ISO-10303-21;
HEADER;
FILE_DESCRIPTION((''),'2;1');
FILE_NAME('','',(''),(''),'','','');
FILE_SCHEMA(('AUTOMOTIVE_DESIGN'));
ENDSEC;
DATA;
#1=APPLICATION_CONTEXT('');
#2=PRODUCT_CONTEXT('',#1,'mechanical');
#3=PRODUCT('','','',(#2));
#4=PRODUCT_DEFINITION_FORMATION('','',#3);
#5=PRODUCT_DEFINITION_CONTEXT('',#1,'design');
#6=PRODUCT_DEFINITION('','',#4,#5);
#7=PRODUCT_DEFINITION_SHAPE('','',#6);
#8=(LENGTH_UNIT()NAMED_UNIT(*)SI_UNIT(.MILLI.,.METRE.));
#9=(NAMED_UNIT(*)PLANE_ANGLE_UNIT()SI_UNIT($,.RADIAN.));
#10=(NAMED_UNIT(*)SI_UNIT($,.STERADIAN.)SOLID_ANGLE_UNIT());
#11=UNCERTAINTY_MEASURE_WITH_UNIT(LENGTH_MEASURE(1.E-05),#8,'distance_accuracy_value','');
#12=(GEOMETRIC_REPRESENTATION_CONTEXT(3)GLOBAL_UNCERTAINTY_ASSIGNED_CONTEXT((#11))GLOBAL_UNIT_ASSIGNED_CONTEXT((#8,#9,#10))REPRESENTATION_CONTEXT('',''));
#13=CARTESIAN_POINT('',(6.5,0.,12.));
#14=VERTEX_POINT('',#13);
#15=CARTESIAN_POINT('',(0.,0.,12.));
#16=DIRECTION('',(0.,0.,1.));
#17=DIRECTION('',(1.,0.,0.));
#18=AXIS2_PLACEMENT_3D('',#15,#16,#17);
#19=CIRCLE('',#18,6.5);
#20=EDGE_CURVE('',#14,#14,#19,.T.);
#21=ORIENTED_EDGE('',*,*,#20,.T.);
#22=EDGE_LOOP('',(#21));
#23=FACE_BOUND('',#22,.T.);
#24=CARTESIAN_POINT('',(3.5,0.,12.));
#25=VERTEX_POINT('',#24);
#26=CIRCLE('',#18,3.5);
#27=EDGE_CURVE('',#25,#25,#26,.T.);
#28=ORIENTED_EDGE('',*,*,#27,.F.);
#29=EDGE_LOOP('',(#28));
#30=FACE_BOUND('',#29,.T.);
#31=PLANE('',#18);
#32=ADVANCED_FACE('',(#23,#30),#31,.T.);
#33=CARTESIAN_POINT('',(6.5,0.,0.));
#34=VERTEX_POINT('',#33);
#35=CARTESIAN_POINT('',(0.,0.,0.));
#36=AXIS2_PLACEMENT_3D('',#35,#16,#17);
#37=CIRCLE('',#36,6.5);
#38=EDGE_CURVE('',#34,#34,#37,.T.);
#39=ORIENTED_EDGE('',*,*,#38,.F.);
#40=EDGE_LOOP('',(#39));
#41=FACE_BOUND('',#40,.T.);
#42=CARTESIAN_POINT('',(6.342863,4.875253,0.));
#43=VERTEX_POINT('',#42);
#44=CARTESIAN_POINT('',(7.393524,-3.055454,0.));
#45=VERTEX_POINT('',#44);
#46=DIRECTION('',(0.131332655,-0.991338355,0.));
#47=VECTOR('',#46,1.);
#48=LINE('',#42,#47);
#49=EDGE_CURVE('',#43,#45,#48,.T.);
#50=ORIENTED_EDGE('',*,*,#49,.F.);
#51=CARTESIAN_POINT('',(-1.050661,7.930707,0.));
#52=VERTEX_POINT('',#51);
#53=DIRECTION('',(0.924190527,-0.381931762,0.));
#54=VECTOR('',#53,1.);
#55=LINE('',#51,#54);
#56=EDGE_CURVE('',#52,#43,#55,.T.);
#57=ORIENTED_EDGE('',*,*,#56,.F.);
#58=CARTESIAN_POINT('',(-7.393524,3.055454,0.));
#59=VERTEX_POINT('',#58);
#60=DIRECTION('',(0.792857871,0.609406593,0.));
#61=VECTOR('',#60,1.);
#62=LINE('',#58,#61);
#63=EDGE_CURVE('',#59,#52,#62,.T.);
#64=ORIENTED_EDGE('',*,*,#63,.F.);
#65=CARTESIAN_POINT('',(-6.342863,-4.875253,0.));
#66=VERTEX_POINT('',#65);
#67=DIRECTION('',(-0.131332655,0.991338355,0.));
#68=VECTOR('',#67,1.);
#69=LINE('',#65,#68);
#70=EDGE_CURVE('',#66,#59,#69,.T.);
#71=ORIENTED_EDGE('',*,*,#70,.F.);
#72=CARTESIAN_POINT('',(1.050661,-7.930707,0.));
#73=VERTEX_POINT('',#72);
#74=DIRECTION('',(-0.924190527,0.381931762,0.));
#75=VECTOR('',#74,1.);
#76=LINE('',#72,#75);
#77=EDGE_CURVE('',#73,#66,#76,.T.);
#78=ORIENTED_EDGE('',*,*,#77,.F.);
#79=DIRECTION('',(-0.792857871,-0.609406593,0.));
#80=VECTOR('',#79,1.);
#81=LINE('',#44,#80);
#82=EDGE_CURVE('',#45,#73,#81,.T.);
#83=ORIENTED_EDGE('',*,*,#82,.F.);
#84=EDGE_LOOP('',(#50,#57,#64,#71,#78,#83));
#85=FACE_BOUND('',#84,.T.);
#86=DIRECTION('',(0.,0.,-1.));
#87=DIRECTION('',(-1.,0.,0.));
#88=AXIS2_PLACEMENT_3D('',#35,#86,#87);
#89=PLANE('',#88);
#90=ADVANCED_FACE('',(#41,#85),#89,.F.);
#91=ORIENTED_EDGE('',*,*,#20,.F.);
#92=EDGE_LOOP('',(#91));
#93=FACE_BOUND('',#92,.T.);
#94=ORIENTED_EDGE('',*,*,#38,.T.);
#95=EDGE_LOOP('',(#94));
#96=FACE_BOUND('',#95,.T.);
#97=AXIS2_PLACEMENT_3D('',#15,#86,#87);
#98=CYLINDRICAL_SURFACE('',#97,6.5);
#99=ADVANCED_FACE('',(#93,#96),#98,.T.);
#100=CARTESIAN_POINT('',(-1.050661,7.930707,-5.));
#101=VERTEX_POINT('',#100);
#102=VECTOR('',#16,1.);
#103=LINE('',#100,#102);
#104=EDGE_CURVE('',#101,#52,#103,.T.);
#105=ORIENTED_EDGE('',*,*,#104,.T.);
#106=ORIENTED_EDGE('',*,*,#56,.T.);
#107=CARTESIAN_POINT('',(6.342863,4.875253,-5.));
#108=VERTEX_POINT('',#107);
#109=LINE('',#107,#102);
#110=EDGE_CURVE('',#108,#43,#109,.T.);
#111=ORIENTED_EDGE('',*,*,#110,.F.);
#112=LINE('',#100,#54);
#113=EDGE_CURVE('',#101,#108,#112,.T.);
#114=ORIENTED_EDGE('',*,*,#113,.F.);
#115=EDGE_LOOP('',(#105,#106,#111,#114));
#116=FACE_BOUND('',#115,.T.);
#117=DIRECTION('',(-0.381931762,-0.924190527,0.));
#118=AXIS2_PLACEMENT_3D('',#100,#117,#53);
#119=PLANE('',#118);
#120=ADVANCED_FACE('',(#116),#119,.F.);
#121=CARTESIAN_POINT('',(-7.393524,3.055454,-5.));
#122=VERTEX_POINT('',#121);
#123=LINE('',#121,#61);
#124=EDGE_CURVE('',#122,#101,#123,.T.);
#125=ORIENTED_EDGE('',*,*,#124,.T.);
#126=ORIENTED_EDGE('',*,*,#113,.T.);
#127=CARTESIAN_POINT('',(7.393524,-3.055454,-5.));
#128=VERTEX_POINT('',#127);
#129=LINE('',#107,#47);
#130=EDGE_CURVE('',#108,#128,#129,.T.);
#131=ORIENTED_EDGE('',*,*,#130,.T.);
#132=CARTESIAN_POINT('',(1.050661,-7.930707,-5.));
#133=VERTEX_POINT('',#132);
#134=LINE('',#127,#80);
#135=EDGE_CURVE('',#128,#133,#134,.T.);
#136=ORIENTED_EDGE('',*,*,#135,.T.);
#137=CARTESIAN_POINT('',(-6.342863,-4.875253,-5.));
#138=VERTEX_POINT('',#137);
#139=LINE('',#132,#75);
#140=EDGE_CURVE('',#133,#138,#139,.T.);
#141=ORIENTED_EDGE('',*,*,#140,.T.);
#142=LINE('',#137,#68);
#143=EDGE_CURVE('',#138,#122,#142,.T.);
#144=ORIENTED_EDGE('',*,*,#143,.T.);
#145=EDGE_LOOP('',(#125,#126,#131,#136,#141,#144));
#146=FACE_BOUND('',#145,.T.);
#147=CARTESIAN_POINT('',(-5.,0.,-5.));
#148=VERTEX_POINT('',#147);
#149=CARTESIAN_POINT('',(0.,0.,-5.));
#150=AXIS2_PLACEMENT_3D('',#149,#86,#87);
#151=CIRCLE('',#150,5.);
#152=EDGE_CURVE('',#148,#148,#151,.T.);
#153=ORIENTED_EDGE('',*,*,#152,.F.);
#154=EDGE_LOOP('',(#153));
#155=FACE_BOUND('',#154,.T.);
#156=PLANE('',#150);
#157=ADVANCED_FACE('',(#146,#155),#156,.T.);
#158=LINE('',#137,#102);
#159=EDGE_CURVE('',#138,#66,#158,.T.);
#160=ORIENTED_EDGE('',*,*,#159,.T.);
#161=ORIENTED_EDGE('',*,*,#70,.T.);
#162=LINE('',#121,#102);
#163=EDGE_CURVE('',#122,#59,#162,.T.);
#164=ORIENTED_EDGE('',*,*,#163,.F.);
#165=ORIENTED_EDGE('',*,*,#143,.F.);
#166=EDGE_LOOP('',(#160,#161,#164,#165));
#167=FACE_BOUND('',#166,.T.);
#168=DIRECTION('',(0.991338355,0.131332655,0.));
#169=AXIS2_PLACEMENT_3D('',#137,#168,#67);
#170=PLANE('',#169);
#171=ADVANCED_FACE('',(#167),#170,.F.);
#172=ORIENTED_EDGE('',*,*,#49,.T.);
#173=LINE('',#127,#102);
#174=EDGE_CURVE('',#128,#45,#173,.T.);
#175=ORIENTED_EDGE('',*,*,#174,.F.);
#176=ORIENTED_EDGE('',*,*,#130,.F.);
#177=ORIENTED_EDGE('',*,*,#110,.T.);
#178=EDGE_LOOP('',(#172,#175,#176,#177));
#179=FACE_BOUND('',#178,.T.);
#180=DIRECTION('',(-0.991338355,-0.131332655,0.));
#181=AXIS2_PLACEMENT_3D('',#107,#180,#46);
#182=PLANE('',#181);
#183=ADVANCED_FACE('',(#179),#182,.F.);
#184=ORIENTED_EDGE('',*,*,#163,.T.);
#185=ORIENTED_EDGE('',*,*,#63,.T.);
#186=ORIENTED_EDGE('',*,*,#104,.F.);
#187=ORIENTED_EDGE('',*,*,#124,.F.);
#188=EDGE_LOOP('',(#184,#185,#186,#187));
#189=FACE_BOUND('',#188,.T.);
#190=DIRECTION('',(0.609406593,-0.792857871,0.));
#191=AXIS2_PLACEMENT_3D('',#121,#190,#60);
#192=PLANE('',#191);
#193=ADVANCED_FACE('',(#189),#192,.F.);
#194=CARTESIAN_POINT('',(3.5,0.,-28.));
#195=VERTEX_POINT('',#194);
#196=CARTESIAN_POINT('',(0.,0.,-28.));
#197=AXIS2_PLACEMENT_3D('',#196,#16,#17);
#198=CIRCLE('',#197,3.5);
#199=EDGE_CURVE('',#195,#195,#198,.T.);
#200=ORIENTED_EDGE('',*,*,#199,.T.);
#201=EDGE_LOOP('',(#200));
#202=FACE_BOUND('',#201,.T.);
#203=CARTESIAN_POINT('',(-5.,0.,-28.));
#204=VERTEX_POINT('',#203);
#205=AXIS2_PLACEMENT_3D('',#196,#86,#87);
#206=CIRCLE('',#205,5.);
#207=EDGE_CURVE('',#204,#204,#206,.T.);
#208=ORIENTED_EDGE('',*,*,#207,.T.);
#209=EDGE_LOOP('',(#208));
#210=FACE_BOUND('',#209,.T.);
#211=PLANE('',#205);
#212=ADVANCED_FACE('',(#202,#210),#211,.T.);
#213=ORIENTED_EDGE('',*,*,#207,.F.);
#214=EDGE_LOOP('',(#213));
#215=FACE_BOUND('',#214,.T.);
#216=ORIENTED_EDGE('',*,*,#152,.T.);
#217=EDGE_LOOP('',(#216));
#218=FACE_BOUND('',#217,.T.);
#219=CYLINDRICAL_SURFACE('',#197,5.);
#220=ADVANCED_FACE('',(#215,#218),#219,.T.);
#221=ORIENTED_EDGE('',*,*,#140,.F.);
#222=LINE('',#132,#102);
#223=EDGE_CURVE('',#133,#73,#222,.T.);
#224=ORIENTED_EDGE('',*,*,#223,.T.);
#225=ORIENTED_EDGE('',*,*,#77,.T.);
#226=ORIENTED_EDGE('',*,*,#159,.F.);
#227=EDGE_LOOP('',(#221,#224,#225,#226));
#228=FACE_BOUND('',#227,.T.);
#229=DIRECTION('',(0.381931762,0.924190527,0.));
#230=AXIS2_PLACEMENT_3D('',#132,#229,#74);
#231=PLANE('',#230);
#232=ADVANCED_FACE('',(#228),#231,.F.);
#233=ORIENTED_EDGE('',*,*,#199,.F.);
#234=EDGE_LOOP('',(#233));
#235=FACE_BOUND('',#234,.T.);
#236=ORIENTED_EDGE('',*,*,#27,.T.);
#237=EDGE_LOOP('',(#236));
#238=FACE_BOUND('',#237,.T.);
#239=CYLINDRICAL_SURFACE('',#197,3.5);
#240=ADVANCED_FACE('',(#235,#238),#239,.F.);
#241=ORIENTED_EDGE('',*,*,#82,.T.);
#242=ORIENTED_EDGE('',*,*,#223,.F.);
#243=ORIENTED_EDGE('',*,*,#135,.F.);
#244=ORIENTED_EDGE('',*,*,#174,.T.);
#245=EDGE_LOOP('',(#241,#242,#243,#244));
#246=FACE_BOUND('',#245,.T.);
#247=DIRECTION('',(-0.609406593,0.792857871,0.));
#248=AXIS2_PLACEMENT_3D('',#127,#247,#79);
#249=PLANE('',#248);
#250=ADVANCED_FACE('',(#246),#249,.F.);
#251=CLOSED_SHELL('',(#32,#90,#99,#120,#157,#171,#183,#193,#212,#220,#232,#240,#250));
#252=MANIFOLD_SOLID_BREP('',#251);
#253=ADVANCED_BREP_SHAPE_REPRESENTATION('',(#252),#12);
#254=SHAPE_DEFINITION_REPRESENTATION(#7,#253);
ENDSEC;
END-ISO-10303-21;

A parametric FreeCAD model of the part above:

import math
import FreeCAD as App
import Part
import Sketcher
from FreeCAD import Vector
Q = App.Units.Quantity


def add_polygon(sketch, points):
    """Adds a closed chain of lines whose ends are joined by coincident constraints."""
    first, n = sketch.GeometryCount, len(points)
    for a, b in zip(points, points[1:] + points[:1]):
        sketch.addGeometry(Part.LineSegment(App.Vector(*a, 0), App.Vector(*b, 0)), False)
    for i in range(n):
        sketch.addConstraint(Sketcher.Constraint("Coincident", first + i, 2, first + (i + 1) % n, 1))

doc = App.newDocument("Part")
body = doc.addObject("PartDesign::Body", "Body")

# Sketch on XY plane
sketch1 = doc.addObject("Sketcher::SketchObject", "Sketch")
body.addObject(sketch1)
sketch1.AttachmentSupport = (doc.XY_Plane, [""])
sketch1.MapMode = "FlatFace"
sketch1.addGeometry(Part.Circle(Vector(0, 0, 0), Vector(0, 0, 1), 6), False)
sketch1.addConstraint(Sketcher.Constraint("Coincident", 0, 3, -1, 1))
sketch1.addConstraint(Sketcher.Constraint("Diameter", 0, Q("13 mm")))
pad1 = doc.addObject("PartDesign::Pad", "Pad")
body.addObject(pad1)
pad1.Profile = sketch1
pad1.Length = 12

# Sketch on XY plane
sketch2 = doc.addObject("Sketcher::SketchObject", "Sketch001")
body.addObject(sketch2)
sketch2.AttachmentSupport = (doc.XY_Plane, [""])
sketch2.MapMode = "FlatFace"
add_polygon(sketch2, [(7, -3), (1, -8), (-6, -5), (-7, 3), (-1, 8), (6, 5)])  # lines 0-5
sketch2.addConstraint(Sketcher.Constraint("Symmetric", 0, 2, 3, 2, -1, 1))
sketch2.addConstraint(Sketcher.Constraint("Symmetric", 1, 2, 4, 2, -1, 1))
sketch2.addConstraint(Sketcher.Constraint("Symmetric", 2, 2, 5, 2, -1, 1))
sketch2.addConstraint(Sketcher.Constraint("Equal", 0, 1))
sketch2.addConstraint(Sketcher.Constraint("Equal", 1, 2))
sketch2.addConstraint(Sketcher.Constraint("Distance", 0, Q("8 mm")))
sketch2.addConstraint(Sketcher.Constraint("DistanceX", 1, 2, 3, 2, Q("5.292202 mm")))
sketch2.addConstraint(Sketcher.Constraint("DistanceY", 2, 2, 4, 2, Q("1.819799 mm")))
sketch2.addConstraint(Sketcher.Constraint("DistanceX", -1, 1, 0, 2, Q("1.050661 mm")))
pad2 = doc.addObject("PartDesign::Pad", "Pad001")
body.addObject(pad2)
pad2.Profile = sketch2
pad2.Length = 5
pad2.Reversed = True

# Sketch on XY plane
sketch3 = doc.addObject("Sketcher::SketchObject", "Sketch002")
body.addObject(sketch3)
sketch3.AttachmentSupport = (doc.XY_Plane, [""])
sketch3.MapMode = "FlatFace"
sketch3.AttachmentOffset = App.Placement(Vector(0, 0, -5), App.Rotation())
sketch3.addGeometry(Part.ArcOfCircle(Part.Circle(Vector(0, 0, 0), Vector(0, 0, 1), 5), math.radians(-22), math.radians(158)), False)
sketch3.addGeometry(Part.ArcOfCircle(Part.Circle(Vector(0, 0, 0), Vector(0, 0, 1), 5), math.radians(180), math.radians(338)), False)
sketch3.addGeometry(Part.ArcOfCircle(Part.Circle(Vector(0, 0, 0), Vector(0, 0, 1), 5), math.radians(158), math.radians(180)), False)
sketch3.addConstraint(Sketcher.Constraint("Tangent", 0, 1, 1, 2))
sketch3.addConstraint(Sketcher.Constraint("Tangent", 1, 1, 2, 2))
sketch3.addConstraint(Sketcher.Constraint("Tangent", 2, 1, 0, 2))
sketch3.addConstraint(Sketcher.Constraint("Coincident", 0, 3, -1, 1))
sketch3.addConstraint(Sketcher.Constraint("PointOnObject", 1, 1, -1))
sketch3.addConstraint(Sketcher.Constraint("Radius", 0, Q("5 mm")))
sketch3.addConstraint(Sketcher.Constraint("DistanceY", 0, 1, -1, 1, Q("1.909659 mm")))
sketch3.addConstraint(Sketcher.Constraint("DistanceY", -1, 1, 2, 1, Q("1.909659 mm")))
pad3 = doc.addObject("PartDesign::Pad", "Pad002")
body.addObject(pad3)
pad3.Profile = sketch3
pad3.Length = 23
pad3.Reversed = True

# Sketch on XY plane
sketch4 = doc.addObject("Sketcher::SketchObject", "Sketch003")
body.addObject(sketch4)
sketch4.AttachmentSupport = (doc.XY_Plane, [""])
sketch4.MapMode = "FlatFace"
sketch4.AttachmentOffset = App.Placement(Vector(0, 0, 12), App.Rotation())
sketch4.addGeometry(Part.Circle(Vector(0, 0, 0), Vector(0, 0, 1), 3.5), False)
sketch4.addConstraint(Sketcher.Constraint("Coincident", 0, 3, -1, 1))
sketch4.addConstraint(Sketcher.Constraint("Diameter", 0, Q("7 mm")))
pocket1 = doc.addObject("PartDesign::Pocket", "Pocket")
body.addObject(pocket1)
pocket1.Profile = sketch4
pocket1.Type = "ThroughAll"

doc.recompute()
